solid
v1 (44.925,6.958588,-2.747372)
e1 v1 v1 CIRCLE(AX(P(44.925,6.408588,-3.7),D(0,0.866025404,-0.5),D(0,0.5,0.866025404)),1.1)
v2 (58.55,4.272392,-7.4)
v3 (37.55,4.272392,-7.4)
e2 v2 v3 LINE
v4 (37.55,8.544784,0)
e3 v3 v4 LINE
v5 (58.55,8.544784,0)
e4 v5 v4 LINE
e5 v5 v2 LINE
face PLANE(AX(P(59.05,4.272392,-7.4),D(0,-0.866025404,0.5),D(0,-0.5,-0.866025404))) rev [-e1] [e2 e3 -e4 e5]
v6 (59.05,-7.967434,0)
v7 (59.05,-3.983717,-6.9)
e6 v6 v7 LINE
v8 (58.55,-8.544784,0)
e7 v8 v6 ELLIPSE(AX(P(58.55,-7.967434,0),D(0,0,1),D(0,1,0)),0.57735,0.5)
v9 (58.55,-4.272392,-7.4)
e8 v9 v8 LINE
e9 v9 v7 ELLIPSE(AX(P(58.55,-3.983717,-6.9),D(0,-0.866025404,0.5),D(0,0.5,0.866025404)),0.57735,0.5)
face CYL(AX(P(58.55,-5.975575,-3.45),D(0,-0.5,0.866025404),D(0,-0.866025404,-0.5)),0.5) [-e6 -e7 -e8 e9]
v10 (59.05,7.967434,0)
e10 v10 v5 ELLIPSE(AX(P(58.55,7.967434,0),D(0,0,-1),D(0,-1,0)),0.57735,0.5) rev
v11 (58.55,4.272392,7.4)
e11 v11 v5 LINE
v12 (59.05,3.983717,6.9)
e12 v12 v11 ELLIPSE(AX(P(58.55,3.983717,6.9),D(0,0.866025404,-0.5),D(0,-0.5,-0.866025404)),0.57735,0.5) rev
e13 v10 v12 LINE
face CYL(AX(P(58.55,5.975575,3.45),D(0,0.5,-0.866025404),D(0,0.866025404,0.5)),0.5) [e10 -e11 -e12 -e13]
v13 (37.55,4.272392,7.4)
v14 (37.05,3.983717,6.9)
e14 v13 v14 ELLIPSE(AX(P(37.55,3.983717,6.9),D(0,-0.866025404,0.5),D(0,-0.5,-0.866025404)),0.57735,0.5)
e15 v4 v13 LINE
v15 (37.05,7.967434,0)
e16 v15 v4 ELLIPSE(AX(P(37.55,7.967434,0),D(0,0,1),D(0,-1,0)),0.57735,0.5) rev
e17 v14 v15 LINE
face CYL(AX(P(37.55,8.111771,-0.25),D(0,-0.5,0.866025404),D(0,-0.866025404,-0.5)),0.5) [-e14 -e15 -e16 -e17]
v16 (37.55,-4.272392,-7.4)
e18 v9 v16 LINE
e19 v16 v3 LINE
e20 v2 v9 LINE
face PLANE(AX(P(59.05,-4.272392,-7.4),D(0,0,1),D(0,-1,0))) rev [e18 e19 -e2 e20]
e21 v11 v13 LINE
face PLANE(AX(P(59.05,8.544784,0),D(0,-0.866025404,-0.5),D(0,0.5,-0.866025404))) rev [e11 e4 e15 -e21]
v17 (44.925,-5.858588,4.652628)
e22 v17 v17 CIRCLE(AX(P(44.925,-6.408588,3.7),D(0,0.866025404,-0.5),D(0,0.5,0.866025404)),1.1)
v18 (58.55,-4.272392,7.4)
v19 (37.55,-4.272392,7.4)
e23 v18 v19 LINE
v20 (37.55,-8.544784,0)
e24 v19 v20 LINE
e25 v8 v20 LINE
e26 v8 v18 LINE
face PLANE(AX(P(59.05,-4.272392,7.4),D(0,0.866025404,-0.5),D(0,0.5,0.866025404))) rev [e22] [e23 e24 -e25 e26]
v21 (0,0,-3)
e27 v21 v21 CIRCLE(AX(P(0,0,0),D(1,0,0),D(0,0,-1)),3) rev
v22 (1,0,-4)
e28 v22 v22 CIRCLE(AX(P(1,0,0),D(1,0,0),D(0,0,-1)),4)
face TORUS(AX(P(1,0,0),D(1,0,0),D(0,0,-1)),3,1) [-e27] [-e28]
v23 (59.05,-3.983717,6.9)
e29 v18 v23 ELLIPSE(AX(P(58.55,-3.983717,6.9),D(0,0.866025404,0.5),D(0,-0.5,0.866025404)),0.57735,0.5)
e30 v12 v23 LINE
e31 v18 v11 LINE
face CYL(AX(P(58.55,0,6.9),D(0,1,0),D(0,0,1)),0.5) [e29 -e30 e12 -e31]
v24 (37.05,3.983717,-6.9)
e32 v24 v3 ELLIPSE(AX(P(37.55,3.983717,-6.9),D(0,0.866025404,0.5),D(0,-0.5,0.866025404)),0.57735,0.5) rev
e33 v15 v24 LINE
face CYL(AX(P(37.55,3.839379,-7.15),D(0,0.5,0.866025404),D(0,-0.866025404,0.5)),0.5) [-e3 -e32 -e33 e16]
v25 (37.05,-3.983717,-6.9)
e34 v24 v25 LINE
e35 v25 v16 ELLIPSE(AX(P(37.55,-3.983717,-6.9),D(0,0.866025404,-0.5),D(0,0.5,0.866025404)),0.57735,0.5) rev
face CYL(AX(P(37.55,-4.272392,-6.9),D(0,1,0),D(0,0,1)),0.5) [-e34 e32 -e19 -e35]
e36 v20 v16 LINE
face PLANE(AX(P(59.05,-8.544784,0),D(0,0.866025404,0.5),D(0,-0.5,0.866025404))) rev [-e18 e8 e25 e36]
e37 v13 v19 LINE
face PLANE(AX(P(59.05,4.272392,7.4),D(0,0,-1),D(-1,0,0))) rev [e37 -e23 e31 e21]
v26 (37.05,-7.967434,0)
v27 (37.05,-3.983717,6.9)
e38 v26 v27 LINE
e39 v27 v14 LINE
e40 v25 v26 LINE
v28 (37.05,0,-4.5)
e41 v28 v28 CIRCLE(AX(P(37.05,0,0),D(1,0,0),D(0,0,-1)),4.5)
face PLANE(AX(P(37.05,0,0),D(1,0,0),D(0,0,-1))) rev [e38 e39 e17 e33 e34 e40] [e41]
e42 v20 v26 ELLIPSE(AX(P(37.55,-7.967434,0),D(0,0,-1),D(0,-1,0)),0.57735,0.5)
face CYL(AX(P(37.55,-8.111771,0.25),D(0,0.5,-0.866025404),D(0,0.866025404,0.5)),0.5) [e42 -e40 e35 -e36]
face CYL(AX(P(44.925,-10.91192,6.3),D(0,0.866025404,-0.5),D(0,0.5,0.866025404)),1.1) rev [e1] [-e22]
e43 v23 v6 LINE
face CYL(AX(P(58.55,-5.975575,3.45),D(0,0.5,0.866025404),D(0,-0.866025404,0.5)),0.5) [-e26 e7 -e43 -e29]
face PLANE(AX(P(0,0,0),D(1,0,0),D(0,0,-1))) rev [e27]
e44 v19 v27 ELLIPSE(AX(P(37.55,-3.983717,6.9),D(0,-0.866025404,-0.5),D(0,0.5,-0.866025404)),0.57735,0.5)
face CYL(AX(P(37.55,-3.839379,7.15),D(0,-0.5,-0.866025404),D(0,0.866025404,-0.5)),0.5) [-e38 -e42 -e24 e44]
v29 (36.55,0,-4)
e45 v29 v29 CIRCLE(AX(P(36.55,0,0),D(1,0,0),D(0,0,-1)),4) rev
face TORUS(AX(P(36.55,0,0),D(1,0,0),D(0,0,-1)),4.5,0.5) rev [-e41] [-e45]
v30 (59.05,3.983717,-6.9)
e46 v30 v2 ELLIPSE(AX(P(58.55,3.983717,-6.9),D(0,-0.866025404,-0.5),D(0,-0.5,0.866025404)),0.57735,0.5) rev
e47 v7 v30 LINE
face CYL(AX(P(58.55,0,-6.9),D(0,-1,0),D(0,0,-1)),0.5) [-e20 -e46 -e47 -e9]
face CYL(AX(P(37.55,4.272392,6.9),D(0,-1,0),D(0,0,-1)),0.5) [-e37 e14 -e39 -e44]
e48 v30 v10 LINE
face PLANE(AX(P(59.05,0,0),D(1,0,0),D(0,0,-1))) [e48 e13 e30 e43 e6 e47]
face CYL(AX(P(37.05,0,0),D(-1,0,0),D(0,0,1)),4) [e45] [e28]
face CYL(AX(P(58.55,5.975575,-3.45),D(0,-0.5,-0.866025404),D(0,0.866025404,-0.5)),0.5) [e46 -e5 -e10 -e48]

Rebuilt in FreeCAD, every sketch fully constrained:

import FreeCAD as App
import Part
import Sketcher

V = App.Vector
Q = App.Units.Quantity


def edges_at(feature, points):
    """Names of the edges that pass closest to the given points."""
    edges = feature.Shape.Edges
    near = lambda p: min(range(len(edges)), key=lambda i: edges[i].distToShape(Part.Vertex(*p))[0])
    return sorted({f"Edge{near(p) + 1}" for p in points})


def add_polygon(sketch, points):
    """Adds a closed chain of lines whose ends are joined by coincident constraints."""
    first, n = sketch.GeometryCount, len(points)
    for a, b in zip(points, points[1:] + points[:1]):
        sketch.addGeometry(Part.LineSegment(App.Vector(*a, 0), App.Vector(*b, 0)), False)
    for i in range(n):
        sketch.addConstraint(Sketcher.Constraint("Coincident", first + i, 2, first + (i + 1) % n, 1))

doc = App.newDocument("Part")
body = doc.addObject("PartDesign::Body", "Body")

sketch1 = body.newObject("Sketcher::SketchObject", "Sketch")
sketch1.AttachmentSupport = (doc.getObject("YZ_Plane"), [""])
sketch1.MapMode = "FlatFace"
sketch1.addGeometry(Part.Circle(V(0, 0, 0), V(0, 0, 1), 4), False)
sketch1.addConstraint([
    Sketcher.Constraint("Coincident", 0, 3, -1, 1),
    Sketcher.Constraint("Diameter", 0, Q("8 mm")),
])
pad1 = body.newObject("PartDesign::Pad", "Pad")
pad1.Profile = sketch1
pad1.Length = 37.05

sketch2 = body.newObject("Sketcher::SketchObject", "Sketch001")
sketch2.AttachmentSupport = (doc.getObject("YZ_Plane"), [""])
sketch2.MapMode = "FlatFace"
sketch2.AttachmentOffset = App.Placement(V(0, 0, 37.05), App.Rotation())
add_polygon(sketch2, [(-9, 0), (-4, -7), (4, -7), (9, 0), (4, 7), (-4, 7)])
sketch2.addConstraint([
    Sketcher.Constraint("Horizontal", 1),
    Sketcher.Constraint("Horizontal", 4),
    Sketcher.Constraint("Symmetric", 0, 2, 3, 2, -1, 1),
    Sketcher.Constraint("Symmetric", 2, 2, 5, 2, -1, 1),
    Sketcher.Constraint("PointOnObject", 2, 2, -1),
    Sketcher.Constraint("Parallel", 2, 5),
    Sketcher.Constraint("Vertical", 1, 2, 3, 2),
    Sketcher.Constraint("Angle", 0, Q("-60 deg")),
    Sketcher.Constraint("DistanceY", 0, 2, -1, 1, Q("7.4 mm")),
    Sketcher.Constraint("DistanceX", 1, 1, 1, 2, Q("8.544784 mm")),
])
pad2 = body.newObject("PartDesign::Pad", "Pad001")
pad2.Profile = sketch2
pad2.Length = 22
doc.recompute()

fillet = body.newObject("PartDesign::Fillet", "Fillet")
fillet.Base = (pad2, edges_at(pad2, [
    (37.05, 0, 4),
    (37.05, -6.409, 3.7),
    (37.05, -6.409, -3.7),
    (37.05, 0, -7.4),
    (37.05, 6.409, -3.7),
    (37.05, 6.409, 3.7),
    (37.05, 0, 7.4),
    (59.05, -6.409, 3.7),
    (59.05, -6.409, -3.7),
    (59.05, 0, -7.4),
    (59.05, 6.409, -3.7),
    (59.05, 6.409, 3.7),
    (59.05, 0, 7.4),
]))
fillet.Radius = 0.5
doc.recompute()

fillet2 = body.newObject("PartDesign::Fillet", "Fillet001")
fillet2.Base = (fillet, edges_at(fillet, [(0, 0, 4)]))
fillet2.Radius = 1

sketch3 = body.newObject("Sketcher::SketchObject", "Sketch002")
sketch3.Placement = App.Placement(V(0, 6.408588, -3.7), App.Rotation(V(1, 0, 0), V(0, -0.5, -0.866025404), V(0, 0.866025404, -0.5), "ZXY"))
sketch3.addGeometry(Part.Circle(V(44.9, 0, 0), V(0, 0, 1), 1.1), False)
sketch3.addConstraint([
    Sketcher.Constraint("PointOnObject", 0, 3, -1),
    Sketcher.Constraint("Diameter", 0, Q("2.2 mm")),
    Sketcher.Constraint("DistanceX", -1, 1, 0, 3, Q("44.925 mm")),
])
pocket1 = body.newObject("PartDesign::Pocket", "Pocket")
pocket1.Profile = sketch3
pocket1.Length = 20

doc.recompute()
